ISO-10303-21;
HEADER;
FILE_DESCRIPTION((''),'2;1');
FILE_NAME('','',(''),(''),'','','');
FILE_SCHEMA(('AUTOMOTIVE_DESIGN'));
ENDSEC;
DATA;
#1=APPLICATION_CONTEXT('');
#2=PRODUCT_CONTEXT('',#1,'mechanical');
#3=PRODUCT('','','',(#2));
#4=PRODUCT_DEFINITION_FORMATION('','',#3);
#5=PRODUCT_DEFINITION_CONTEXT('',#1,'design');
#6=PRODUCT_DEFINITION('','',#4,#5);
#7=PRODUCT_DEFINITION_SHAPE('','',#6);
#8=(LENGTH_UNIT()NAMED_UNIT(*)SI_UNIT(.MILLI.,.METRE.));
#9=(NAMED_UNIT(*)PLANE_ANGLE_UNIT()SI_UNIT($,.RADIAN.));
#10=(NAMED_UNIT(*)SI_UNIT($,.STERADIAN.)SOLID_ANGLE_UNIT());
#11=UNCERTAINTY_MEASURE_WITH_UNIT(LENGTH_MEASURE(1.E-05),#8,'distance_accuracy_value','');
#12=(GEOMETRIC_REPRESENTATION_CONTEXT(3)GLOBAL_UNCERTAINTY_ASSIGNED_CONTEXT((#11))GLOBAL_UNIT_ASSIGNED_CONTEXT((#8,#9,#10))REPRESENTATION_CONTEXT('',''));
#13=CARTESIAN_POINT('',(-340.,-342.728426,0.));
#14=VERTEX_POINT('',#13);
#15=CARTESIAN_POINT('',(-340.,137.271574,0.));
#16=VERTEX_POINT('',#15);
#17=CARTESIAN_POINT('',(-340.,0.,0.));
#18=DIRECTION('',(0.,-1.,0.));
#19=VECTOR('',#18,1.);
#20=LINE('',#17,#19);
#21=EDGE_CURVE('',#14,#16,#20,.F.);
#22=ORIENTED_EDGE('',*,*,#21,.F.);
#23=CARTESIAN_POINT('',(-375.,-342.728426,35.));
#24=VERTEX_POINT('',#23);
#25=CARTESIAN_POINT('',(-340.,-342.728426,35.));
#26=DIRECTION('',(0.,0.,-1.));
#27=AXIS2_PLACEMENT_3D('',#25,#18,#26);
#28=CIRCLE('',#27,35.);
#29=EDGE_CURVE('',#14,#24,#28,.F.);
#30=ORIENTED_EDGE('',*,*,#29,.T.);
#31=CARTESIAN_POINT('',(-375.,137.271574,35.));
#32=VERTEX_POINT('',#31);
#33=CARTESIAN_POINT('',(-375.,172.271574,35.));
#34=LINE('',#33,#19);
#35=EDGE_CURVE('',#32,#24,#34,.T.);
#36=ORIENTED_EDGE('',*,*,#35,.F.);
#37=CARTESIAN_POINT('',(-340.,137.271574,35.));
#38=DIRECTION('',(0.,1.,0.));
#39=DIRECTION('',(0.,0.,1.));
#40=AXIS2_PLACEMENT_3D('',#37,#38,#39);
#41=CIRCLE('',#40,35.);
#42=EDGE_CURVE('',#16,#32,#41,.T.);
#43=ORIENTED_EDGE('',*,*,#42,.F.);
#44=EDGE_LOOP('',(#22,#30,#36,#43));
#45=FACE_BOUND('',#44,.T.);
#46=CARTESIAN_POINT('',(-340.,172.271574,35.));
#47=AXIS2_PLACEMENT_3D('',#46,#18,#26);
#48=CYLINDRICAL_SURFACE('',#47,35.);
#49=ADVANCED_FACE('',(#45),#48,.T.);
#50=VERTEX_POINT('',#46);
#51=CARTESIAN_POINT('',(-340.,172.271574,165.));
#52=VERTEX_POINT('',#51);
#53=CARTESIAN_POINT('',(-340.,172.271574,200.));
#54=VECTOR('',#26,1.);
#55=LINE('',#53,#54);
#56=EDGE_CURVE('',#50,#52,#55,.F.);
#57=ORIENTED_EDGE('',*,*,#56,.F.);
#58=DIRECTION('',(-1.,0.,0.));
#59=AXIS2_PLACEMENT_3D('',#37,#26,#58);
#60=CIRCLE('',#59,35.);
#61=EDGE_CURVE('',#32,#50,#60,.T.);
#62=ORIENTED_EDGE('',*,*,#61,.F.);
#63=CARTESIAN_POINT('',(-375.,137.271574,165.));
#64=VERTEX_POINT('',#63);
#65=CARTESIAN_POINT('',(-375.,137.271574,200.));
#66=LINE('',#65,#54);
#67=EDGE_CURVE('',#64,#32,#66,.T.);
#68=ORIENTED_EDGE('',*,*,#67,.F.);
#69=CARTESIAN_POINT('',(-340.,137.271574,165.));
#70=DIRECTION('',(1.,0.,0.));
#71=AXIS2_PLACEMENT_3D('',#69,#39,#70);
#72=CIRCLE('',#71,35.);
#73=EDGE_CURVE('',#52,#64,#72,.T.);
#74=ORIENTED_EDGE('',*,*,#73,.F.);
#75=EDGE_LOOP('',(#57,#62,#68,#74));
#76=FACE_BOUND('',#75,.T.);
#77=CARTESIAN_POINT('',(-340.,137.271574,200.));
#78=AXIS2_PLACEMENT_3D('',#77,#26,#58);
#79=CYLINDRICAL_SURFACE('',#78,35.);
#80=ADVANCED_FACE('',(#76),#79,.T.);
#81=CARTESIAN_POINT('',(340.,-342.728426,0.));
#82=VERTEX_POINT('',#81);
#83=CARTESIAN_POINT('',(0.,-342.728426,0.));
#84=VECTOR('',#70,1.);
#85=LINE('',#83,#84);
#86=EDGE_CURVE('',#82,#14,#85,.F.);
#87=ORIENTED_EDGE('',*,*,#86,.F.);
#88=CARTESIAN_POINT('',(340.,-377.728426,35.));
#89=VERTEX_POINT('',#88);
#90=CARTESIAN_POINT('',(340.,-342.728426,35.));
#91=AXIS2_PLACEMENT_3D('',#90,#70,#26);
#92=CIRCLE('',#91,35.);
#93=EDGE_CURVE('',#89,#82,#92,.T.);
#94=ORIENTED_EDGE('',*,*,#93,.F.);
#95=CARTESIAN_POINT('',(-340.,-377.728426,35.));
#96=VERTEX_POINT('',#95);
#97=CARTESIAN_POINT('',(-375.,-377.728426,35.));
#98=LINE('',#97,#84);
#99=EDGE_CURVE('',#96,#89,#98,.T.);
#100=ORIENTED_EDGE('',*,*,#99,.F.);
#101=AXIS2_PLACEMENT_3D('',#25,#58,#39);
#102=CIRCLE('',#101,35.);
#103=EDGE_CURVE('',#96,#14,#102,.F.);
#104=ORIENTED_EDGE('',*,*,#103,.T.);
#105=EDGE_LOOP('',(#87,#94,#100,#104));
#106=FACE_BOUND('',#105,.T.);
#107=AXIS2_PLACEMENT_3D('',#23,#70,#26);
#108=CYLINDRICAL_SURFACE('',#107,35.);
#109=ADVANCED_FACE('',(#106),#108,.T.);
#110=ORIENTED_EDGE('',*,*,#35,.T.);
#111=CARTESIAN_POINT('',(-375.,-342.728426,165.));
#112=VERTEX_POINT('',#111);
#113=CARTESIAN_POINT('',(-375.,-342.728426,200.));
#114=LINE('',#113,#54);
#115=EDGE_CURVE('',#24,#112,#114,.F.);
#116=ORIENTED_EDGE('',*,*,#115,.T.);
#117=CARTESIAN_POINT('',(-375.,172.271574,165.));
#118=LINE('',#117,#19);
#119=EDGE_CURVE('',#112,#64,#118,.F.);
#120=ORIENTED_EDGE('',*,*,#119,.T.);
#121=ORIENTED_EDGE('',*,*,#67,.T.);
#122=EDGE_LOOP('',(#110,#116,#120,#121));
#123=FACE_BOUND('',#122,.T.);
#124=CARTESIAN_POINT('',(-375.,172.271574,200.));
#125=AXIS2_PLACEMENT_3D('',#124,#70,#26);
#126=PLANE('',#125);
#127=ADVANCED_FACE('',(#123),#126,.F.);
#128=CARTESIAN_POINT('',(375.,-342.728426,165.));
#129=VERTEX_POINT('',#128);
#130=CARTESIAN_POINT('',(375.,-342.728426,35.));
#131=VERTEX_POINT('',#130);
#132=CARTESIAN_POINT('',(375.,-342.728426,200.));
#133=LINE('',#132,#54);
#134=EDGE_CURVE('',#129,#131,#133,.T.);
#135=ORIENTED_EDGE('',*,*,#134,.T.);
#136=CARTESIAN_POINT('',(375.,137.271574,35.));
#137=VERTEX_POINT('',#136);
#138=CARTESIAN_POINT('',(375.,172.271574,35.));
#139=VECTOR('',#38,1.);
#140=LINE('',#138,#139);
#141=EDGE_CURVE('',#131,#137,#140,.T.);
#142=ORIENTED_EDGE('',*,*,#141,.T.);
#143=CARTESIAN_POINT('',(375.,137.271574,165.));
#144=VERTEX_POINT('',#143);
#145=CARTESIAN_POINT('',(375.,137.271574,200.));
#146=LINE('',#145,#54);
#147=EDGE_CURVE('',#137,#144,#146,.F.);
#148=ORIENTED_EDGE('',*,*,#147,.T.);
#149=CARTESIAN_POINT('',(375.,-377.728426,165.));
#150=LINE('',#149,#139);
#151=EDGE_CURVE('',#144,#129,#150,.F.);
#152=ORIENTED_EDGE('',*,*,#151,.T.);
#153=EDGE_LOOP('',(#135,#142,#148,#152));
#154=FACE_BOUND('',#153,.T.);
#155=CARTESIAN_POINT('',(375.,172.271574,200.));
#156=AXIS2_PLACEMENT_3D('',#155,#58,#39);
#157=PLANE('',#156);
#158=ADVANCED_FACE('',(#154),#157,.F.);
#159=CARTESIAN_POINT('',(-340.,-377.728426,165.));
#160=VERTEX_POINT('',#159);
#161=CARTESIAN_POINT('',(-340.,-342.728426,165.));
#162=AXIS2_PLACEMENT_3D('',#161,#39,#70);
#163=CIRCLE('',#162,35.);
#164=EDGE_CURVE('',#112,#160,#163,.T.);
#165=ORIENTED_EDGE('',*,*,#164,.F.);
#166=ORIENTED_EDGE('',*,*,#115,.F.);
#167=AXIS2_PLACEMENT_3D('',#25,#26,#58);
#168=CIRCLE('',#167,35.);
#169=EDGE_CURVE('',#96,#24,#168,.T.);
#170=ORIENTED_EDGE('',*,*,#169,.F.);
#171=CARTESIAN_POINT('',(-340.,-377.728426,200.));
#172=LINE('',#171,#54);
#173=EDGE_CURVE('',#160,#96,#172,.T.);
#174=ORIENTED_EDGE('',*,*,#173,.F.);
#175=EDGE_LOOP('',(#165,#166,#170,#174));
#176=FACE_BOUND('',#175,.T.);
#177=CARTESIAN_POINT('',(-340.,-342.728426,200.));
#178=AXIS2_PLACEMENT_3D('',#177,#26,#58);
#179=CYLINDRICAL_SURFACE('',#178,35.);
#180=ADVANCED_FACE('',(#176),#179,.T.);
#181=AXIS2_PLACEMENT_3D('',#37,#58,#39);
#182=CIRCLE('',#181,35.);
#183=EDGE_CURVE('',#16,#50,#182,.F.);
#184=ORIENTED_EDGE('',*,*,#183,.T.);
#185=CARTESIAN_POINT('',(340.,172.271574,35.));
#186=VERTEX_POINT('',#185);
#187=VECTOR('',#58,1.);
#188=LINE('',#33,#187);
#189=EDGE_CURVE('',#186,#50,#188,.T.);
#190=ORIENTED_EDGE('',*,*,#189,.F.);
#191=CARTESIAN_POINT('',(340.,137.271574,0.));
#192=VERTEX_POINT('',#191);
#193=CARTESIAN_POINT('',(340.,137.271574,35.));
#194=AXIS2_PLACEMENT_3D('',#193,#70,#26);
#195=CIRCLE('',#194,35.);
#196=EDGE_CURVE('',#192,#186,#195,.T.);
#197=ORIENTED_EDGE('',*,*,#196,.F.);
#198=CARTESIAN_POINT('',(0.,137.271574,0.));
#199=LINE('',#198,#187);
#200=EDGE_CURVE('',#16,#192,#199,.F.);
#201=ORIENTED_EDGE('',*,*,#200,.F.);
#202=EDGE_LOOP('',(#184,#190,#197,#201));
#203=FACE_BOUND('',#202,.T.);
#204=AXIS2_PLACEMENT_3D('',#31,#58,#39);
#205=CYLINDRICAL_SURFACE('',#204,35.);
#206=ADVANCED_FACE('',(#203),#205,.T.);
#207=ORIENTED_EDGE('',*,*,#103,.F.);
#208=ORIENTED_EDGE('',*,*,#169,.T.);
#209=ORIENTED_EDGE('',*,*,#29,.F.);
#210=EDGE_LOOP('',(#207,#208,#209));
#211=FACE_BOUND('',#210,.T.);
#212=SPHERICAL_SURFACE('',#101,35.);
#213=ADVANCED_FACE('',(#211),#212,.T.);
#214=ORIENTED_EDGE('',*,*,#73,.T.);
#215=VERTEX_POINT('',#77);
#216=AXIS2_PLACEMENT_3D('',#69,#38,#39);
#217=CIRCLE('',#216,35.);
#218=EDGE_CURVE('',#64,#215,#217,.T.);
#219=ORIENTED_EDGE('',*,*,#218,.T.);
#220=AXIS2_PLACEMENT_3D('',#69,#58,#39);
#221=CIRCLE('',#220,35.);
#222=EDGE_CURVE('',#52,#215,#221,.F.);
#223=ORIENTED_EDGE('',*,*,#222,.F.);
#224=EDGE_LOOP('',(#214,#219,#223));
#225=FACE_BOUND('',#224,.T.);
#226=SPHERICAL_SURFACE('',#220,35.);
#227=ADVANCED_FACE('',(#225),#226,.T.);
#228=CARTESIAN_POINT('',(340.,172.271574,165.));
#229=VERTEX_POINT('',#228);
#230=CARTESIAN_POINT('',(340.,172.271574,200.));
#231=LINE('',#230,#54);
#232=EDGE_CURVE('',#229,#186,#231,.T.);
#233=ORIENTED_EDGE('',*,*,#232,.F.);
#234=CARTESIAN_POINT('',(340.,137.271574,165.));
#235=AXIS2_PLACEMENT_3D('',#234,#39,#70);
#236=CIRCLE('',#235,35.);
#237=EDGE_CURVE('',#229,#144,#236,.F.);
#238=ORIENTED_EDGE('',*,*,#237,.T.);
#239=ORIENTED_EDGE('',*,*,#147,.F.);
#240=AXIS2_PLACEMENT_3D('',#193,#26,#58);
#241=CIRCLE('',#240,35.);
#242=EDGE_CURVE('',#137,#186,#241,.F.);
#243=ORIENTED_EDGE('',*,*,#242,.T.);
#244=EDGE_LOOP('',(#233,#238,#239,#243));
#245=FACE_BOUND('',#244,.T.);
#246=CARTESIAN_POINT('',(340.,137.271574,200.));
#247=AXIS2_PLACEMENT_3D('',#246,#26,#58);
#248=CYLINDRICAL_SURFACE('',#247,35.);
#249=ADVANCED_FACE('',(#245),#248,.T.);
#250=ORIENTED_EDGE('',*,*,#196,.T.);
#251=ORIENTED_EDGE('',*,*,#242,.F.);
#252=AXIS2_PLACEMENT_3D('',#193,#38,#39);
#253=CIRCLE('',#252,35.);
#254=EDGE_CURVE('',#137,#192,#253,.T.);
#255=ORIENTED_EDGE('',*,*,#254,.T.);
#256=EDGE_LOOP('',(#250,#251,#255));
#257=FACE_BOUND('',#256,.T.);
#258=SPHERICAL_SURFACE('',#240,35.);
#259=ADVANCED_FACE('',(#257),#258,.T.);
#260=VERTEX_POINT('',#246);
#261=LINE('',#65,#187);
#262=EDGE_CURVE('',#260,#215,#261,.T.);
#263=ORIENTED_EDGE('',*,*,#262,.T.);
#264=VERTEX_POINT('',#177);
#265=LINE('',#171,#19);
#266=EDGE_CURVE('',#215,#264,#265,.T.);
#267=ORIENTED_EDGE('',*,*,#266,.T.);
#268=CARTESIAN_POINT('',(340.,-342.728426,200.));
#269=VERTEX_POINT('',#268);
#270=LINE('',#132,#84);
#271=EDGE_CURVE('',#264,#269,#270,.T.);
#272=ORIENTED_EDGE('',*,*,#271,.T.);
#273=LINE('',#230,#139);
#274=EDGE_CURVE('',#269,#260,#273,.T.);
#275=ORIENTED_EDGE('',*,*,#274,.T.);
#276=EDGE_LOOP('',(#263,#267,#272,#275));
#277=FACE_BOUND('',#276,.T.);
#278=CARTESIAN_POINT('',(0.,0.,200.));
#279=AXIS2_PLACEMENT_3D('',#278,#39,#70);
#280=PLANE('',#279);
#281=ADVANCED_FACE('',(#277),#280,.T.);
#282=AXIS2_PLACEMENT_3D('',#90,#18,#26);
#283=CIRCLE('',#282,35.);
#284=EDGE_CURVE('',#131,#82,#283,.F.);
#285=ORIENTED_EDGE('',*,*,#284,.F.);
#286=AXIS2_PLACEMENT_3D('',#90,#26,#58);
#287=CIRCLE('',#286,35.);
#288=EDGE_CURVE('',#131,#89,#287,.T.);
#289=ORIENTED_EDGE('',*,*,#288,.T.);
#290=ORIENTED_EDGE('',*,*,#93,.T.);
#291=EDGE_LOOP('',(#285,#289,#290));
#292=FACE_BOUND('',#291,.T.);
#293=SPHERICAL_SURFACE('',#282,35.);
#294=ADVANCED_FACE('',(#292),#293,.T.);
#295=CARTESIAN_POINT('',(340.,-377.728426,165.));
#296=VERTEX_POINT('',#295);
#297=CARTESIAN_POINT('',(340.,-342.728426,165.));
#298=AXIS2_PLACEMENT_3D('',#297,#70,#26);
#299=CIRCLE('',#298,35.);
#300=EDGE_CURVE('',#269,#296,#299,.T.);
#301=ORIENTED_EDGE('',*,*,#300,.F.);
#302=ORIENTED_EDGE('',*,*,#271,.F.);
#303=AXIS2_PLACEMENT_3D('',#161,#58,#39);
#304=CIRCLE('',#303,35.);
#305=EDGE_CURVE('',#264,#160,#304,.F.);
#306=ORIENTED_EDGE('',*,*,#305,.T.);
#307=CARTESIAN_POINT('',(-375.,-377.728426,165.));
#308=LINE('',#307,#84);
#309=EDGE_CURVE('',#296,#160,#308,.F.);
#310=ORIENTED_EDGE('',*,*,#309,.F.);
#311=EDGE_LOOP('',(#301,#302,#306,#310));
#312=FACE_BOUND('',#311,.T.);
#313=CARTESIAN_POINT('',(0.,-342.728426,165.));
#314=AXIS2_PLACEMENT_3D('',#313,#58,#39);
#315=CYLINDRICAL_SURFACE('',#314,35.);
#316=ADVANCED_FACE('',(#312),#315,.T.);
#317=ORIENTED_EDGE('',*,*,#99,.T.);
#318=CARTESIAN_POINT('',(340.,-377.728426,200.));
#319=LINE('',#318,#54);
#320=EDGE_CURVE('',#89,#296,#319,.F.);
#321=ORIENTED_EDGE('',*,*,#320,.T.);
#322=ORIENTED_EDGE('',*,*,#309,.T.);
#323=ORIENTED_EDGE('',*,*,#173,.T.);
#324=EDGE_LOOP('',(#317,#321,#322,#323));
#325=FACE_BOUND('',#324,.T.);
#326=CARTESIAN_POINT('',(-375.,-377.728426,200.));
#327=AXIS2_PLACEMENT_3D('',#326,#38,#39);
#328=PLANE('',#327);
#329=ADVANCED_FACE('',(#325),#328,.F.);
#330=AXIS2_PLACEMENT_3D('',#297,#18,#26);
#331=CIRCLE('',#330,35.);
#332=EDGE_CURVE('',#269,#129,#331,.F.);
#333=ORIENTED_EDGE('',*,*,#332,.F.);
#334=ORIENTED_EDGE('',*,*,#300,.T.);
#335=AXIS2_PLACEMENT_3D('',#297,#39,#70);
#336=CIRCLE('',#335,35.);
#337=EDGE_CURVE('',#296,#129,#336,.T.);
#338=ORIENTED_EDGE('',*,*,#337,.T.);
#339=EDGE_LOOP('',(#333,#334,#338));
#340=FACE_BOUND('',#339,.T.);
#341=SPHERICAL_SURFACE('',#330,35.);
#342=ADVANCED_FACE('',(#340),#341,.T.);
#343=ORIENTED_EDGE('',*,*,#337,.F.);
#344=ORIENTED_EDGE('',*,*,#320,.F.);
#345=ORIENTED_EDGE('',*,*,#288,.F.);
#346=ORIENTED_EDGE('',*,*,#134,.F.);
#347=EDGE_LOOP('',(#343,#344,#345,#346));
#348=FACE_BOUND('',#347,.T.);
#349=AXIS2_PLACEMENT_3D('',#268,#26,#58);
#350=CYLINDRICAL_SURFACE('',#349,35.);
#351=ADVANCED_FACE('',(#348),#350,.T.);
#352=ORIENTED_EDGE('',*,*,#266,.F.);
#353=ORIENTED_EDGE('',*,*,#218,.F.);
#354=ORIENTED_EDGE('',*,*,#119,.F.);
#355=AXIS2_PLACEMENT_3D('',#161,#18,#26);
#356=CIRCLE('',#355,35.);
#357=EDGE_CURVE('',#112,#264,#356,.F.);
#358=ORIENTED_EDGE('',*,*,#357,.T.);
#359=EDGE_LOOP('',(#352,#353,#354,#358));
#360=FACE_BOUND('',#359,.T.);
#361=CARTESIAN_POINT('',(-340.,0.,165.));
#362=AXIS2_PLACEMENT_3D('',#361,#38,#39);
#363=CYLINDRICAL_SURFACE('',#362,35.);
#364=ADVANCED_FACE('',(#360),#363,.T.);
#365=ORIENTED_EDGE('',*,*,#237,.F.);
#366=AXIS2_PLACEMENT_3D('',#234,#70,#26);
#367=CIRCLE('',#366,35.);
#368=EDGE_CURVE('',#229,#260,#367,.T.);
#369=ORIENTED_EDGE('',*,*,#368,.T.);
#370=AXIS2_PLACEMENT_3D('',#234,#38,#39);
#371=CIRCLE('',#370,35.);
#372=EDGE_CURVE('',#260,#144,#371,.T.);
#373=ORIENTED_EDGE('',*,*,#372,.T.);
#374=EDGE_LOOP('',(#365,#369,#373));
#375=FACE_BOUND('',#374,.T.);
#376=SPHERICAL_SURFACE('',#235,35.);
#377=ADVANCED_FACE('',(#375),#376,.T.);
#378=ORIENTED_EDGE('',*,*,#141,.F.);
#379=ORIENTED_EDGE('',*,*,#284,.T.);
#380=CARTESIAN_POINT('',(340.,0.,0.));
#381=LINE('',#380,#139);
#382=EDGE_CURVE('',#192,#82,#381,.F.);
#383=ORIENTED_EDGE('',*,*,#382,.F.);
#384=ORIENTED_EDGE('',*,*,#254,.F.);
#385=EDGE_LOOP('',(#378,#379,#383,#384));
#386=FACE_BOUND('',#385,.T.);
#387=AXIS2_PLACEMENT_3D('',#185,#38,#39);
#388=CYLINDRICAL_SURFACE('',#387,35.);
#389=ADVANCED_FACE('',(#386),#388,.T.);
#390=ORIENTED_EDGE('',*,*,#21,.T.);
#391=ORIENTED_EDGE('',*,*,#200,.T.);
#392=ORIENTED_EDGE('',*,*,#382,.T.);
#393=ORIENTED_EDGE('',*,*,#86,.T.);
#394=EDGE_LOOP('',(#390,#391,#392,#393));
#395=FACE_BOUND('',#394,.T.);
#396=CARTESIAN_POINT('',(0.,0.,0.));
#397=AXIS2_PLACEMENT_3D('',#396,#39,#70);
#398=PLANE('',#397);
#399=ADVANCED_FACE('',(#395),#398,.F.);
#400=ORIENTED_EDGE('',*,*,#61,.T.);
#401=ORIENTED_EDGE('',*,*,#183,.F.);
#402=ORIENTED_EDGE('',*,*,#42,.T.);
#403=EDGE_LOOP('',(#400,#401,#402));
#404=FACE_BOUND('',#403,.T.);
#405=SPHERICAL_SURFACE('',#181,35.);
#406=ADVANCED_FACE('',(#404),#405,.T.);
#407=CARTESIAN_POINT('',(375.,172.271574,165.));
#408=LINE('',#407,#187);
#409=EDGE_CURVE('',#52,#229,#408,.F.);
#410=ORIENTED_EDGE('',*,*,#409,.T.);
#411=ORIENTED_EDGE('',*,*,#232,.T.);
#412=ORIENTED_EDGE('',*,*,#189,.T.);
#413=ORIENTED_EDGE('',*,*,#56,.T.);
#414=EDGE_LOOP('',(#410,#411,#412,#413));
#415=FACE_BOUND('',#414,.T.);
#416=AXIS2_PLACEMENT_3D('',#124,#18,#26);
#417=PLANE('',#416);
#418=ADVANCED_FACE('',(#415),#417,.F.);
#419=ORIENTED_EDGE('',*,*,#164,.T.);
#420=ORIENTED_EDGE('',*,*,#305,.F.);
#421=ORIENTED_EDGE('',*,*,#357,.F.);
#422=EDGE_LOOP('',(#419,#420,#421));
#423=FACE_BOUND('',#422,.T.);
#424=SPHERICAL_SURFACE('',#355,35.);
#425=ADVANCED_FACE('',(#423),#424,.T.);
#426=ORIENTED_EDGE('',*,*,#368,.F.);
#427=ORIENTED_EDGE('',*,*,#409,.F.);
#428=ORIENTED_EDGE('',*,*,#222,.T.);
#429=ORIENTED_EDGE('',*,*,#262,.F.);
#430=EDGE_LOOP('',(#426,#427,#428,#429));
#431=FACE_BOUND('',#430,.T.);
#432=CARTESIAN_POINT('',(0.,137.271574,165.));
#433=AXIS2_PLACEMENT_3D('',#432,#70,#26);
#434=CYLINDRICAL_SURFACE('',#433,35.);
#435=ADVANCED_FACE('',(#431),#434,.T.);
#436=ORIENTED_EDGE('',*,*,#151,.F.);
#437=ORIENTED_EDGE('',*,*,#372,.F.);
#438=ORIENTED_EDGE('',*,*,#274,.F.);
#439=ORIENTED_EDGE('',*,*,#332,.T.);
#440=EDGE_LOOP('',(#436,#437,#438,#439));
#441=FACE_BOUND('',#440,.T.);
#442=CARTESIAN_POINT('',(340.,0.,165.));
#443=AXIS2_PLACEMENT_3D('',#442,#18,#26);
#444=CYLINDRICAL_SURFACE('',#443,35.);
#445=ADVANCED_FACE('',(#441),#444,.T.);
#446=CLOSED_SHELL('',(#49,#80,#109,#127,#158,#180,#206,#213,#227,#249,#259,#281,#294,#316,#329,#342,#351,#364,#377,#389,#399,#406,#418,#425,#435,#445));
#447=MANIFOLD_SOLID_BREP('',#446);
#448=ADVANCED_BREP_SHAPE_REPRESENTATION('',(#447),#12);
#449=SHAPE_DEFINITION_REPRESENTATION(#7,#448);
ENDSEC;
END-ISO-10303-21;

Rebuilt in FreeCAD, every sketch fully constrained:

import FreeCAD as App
import Part
import Sketcher
from FreeCAD import Vector

doc = App.newDocument("Part")
body = doc.addObject("PartDesign::Body", "Body")

# Sketch on XY plane
sketch1 = body.newObject("Sketcher::SketchObject", "Sketch")
sketch1.AttachmentSupport = (doc.getObject("XY_Plane"), [""])
sketch1.MapMode = "FlatFace"
sketch1.addGeometry([
    Part.LineSegment(Vector(-375, 172, 0), Vector(-375, -378, 0)),
    Part.LineSegment(Vector(-375, -378, 0), Vector(375, -378, 0)),
    Part.LineSegment(Vector(375, -378, 0), Vector(375, 172, 0)),
    Part.LineSegment(Vector(375, 172, 0), Vector(-375, 172, 0)),
], False)
sketch1.addConstraint([
    Sketcher.Constraint("Coincident", 0, 2, 1, 1),
    Sketcher.Constraint("Coincident", 1, 2, 2, 1),
    Sketcher.Constraint("Coincident", 2, 2, 3, 1),
    Sketcher.Constraint("Coincident", 3, 2, 0, 1),
    Sketcher.Constraint("Vertical", 0),
    Sketcher.Constraint("Horizontal", 1),
    Sketcher.Constraint("Vertical", 2),
    Sketcher.Constraint("Horizontal", 3),
    Sketcher.Constraint("DistanceX", 1, 1, 1, 2, 750.0),
    Sketcher.Constraint("DistanceY", 0, 2, 0, 1, 550.0),
    Sketcher.Constraint("DistanceX", 0, 2, -1, 1, 375.0),
    Sketcher.Constraint("DistanceY", 0, 2, -1, 1, 377.728426),
])
pad1 = body.newObject("PartDesign::Pad", "Pad")
pad1.Profile = sketch1
pad1.Length = 200
doc.recompute()

fillet = body.newObject("PartDesign::Fillet", "Fillet")
fillet.Base = (pad1, ["Edge1"])
fillet.UseAllEdges = True
fillet.Radius = 35

doc.recompute()
